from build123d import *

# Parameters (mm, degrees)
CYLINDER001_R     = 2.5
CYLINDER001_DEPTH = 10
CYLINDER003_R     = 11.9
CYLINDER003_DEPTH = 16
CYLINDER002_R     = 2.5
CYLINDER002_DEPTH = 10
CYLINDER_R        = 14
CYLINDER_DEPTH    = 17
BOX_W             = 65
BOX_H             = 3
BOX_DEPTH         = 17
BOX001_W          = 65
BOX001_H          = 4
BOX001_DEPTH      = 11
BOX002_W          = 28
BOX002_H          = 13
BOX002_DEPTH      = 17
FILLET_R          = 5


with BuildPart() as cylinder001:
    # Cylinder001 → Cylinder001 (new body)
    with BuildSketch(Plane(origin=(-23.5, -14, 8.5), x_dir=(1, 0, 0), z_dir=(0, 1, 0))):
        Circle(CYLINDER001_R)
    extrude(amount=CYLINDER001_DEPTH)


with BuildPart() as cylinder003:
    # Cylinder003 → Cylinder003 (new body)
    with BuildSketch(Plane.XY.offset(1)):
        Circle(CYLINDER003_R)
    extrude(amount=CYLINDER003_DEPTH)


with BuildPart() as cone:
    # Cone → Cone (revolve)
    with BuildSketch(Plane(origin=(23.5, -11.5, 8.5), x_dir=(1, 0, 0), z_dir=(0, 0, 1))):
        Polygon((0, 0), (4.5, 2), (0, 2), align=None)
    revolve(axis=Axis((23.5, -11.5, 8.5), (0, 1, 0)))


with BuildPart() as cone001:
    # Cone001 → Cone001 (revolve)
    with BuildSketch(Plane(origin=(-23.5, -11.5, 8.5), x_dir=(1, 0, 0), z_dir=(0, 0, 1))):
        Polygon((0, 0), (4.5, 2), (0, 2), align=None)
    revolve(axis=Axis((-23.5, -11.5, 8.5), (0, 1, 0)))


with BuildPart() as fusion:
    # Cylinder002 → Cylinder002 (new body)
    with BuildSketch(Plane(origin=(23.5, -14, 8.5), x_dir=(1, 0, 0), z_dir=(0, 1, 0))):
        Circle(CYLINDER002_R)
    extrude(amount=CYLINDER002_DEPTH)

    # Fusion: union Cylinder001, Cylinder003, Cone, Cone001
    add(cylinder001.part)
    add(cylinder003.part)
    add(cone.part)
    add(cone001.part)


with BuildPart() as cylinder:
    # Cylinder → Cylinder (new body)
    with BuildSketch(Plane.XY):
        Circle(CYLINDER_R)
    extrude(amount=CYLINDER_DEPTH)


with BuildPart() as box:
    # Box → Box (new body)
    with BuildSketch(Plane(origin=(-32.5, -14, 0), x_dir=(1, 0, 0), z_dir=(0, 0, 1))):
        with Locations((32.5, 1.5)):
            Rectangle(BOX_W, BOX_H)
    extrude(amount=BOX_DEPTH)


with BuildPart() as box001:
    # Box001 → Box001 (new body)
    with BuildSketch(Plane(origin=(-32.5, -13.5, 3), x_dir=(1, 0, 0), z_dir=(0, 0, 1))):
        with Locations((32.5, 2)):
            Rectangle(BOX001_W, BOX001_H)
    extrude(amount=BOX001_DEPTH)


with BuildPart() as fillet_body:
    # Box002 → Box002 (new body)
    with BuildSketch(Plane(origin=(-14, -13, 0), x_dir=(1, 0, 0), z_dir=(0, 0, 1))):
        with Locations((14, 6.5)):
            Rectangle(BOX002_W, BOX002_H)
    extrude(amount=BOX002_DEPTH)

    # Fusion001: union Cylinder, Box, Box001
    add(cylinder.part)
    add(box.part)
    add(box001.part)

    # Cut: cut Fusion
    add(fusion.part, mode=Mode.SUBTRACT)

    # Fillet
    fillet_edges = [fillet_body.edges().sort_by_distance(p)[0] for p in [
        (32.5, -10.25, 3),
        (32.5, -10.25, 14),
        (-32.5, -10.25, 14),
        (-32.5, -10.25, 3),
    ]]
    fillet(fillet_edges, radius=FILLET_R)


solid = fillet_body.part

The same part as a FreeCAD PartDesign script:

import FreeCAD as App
import Part
import Sketcher


def edges_at(feature, points):
    """Names of the edges that pass closest to the given points."""
    edges = feature.Shape.Edges
    near = lambda p: min(range(len(edges)), key=lambda i: edges[i].distToShape(Part.Vertex(*p))[0])
    return sorted({f"Edge{near(p) + 1}" for p in points})

doc = App.newDocument("Part")
params = doc.addObject("Spreadsheet::Sheet", "Params")
for row, (alias, value) in enumerate([
    ("sketch1_diameter", "5 mm"),
    ("pad1_length", "10 mm"),
    ("sketch2_diameter", "23.8 mm"),
    ("pad2_length", "16 mm"),
    ("sketch3_height", "2 mm"),
    ("sketch3_width", "4.5 mm"),
    ("revolution_angle", "360 deg"),
    ("sketch4_height", "2 mm"),
    ("sketch4_width", "4.5 mm"),
    ("revolution2_angle", "360 deg"),
    ("sketch5_diameter", "5 mm"),
    ("pad3_length", "10 mm"),
    ("sketch6_diameter", "28 mm"),
    ("pad4_length", "17 mm"),
    ("sketch7_width", "65 mm"),
    ("sketch7_height", "3 mm"),
    ("pad5_length", "17 mm"),
    ("sketch8_width", "65 mm"),
    ("sketch8_height", "4 mm"),
    ("pad6_length", "11 mm"),
    ("sketch9_width", "28 mm"),
    ("sketch9_height", "13 mm"),
    ("pad7_length", "17 mm"),
    ("fillet_radius", "5 mm"),
], start=1):
    params.set(f"A{row}", alias)
    params.set(f"B{row}", "=" + value)
    params.setAlias(f"B{row}", alias)

body = doc.addObject("PartDesign::Body", "Body")

# Sketch on XZ plane
sketch1 = body.newObject("Sketcher::SketchObject", "Sketch")
sketch1.AttachmentSupport = (doc.getObject("XZ_Plane"), [""])
sketch1.MapMode = "FlatFace"
sketch1.AttachmentOffset = App.Placement(App.Vector(0, 0, 14), App.Rotation())
sketch1.addGeometry(Part.Circle(App.Vector(-23.5, 8.5, 0), App.Vector(0, 0, 1), 2.5), False)
sketch1.addConstraint([
    Sketcher.Constraint("Diameter", 0, 5.0),
    Sketcher.Constraint("DistanceX", 0, 3, -1, 1, 23.5),
    Sketcher.Constraint("DistanceY", -1, 1, 0, 3, 8.5),
])
sketch1.setExpression("Constraints[0]", "Params.sketch1_diameter")
pad1 = body.newObject("PartDesign::Pad", "Pad")
pad1.Profile = sketch1
pad1.setExpression("Length", "Params.pad1_length")
pad1.Reversed = True
body2 = doc.addObject("PartDesign::Body", "Body001")

# Sketch on XY plane
sketch2 = body2.newObject("Sketcher::SketchObject", "Sketch001")
sketch2.AttachmentSupport = (doc.getObject("XY_Plane001"), [""])
sketch2.MapMode = "FlatFace"
sketch2.AttachmentOffset = App.Placement(App.Vector(0, 0, 1), App.Rotation())
sketch2.addGeometry(Part.Circle(App.Vector(0, 0, 0), App.Vector(0, 0, 1), 12), False)
sketch2.addConstraint([
    Sketcher.Constraint("Coincident", 0, 3, -1, 1),
    Sketcher.Constraint("Diameter", 0, 23.8),
])
sketch2.setExpression("Constraints[1]", "Params.sketch2_diameter")
pad2 = body2.newObject("PartDesign::Pad", "Pad001")
pad2.Profile = sketch2
pad2.setExpression("Length", "Params.pad2_length")
body3 = doc.addObject("PartDesign::Body", "Body002")

# Sketch on XY plane
sketch3 = body3.newObject("Sketcher::SketchObject", "Sketch002")
sketch3.AttachmentSupport = (doc.getObject("XY_Plane002"), [""])
sketch3.MapMode = "FlatFace"
sketch3.AttachmentOffset = App.Placement(App.Vector(0, 0, 8.5), App.Rotation())
sketch3.addGeometry([
    Part.LineSegment(App.Vector(23.5, -11.5, 0), App.Vector(28, -9.5, 0)),
    Part.LineSegment(App.Vector(28, -9.5, 0), App.Vector(23.5, -9.5, 0)),
    Part.LineSegment(App.Vector(23.5, -9.5, 0), App.Vector(23.5, -11.5, 0)),
], False)
sketch3.addGeometry(Part.LineSegment(App.Vector(23.5, -11.5, 0), App.Vector(23.5, -9.5, 0)), True)  # axis
sketch3.addConstraint([
    Sketcher.Constraint("Coincident", 0, 2, 1, 1),
    Sketcher.Constraint("Coincident", 1, 2, 2, 1),
    Sketcher.Constraint("Coincident", 2, 2, 0, 1),
    Sketcher.Constraint("Horizontal", 1),
    Sketcher.Constraint("Vertical", 2),
    Sketcher.Constraint("Vertical", 3),
    Sketcher.Constraint("Coincident", 3, 1, 2, 2),
    Sketcher.Constraint("Horizontal", 0, 2, 3, 2),
    Sketcher.Constraint("DistanceY", 2, 2, 2, 1, 2.0),
    Sketcher.Constraint("DistanceX", 1, 2, 1, 1, 4.5),
    Sketcher.Constraint("DistanceX", -1, 1, 0, 2, 28.0),
    Sketcher.Constraint("DistanceY", 0, 2, -1, 1, 9.5),
])
sketch3.setExpression("Constraints[8]", "Params.sketch3_height")
sketch3.setExpression("Constraints[9]", "Params.sketch3_width")
revolution = body3.newObject("PartDesign::Revolution", "Revolution")
revolution.Profile = sketch3
revolution.ReferenceAxis = (sketch3, ["Axis0"])
revolution.setExpression("Angle", "Params.revolution_angle")
body4 = doc.addObject("PartDesign::Body", "Body003")

# Sketch on XY plane
sketch4 = body4.newObject("Sketcher::SketchObject", "Sketch003")
sketch4.AttachmentSupport = (doc.getObject("XY_Plane003"), [""])
sketch4.MapMode = "FlatFace"
sketch4.AttachmentOffset = App.Placement(App.Vector(0, 0, 8.5), App.Rotation())
sketch4.addGeometry([
    Part.LineSegment(App.Vector(-23.5, -11.5, 0), App.Vector(-19, -9.5, 0)),
    Part.LineSegment(App.Vector(-19, -9.5, 0), App.Vector(-23.5, -9.5, 0)),
    Part.LineSegment(App.Vector(-23.5, -9.5, 0), App.Vector(-23.5, -11.5, 0)),
], False)
sketch4.addGeometry(Part.LineSegment(App.Vector(-23.5, -11.5, 0), App.Vector(-23.5, -9.5, 0)), True)  # axis
sketch4.addConstraint([
    Sketcher.Constraint("Coincident", 0, 2, 1, 1),
    Sketcher.Constraint("Coincident", 1, 2, 2, 1),
    Sketcher.Constraint("Coincident", 2, 2, 0, 1),
    Sketcher.Constraint("Horizontal", 1),
    Sketcher.Constraint("Vertical", 2),
    Sketcher.Constraint("Vertical", 3),
    Sketcher.Constraint("Coincident", 3, 1, 2, 2),
    Sketcher.Constraint("Horizontal", 0, 2, 3, 2),
    Sketcher.Constraint("DistanceY", 2, 2, 2, 1, 2.0),
    Sketcher.Constraint("DistanceX", 1, 2, 1, 1, 4.5),
    Sketcher.Constraint("DistanceX", 0, 2, -1, 1, 19.0),
    Sketcher.Constraint("DistanceY", 0, 2, -1, 1, 9.5),
])
sketch4.setExpression("Constraints[8]", "Params.sketch4_height")
sketch4.setExpression("Constraints[9]", "Params.sketch4_width")
revolution2 = body4.newObject("PartDesign::Revolution", "Revolution001")
revolution2.Profile = sketch4
revolution2.ReferenceAxis = (sketch4, ["Axis0"])
revolution2.setExpression("Angle", "Params.revolution2_angle")
body5 = doc.addObject("PartDesign::Body", "Body004")
body5.AllowCompound = True

# Sketch on XZ plane
sketch5 = body5.newObject("Sketcher::SketchObject", "Sketch004")
sketch5.AttachmentSupport = (doc.getObject("XZ_Plane004"), [""])
sketch5.MapMode = "FlatFace"
sketch5.AttachmentOffset = App.Placement(App.Vector(0, 0, 14), App.Rotation())
sketch5.addGeometry(Part.Circle(App.Vector(23.5, 8.5, 0), App.Vector(0, 0, 1), 2.5), False)
sketch5.addConstraint([
    Sketcher.Constraint("Diameter", 0, 5.0),
    Sketcher.Constraint("DistanceX", -1, 1, 0, 3, 23.5),
    Sketcher.Constraint("DistanceY", -1, 1, 0, 3, 8.5),
])
sketch5.setExpression("Constraints[0]", "Params.sketch5_diameter")
pad3 = body5.newObject("PartDesign::Pad", "Pad002")
pad3.Profile = sketch5
pad3.setExpression("Length", "Params.pad3_length")
pad3.Reversed = True
doc.recompute()

boolean = body5.newObject("PartDesign::Boolean", "Boolean")
boolean.Type = "Fuse"
boolean.addObjects([body])
doc.recompute()

boolean2 = body5.newObject("PartDesign::Boolean", "Boolean001")
boolean2.Type = "Fuse"
boolean2.addObjects([body2])
doc.recompute()

boolean3 = body5.newObject("PartDesign::Boolean", "Boolean002")
boolean3.Type = "Fuse"
boolean3.addObjects([body3])
doc.recompute()

boolean4 = body5.newObject("PartDesign::Boolean", "Boolean003")
boolean4.Type = "Fuse"
boolean4.addObjects([body4])
body6 = doc.addObject("PartDesign::Body", "Body005")

# Sketch on XY plane
sketch6 = body6.newObject("Sketcher::SketchObject", "Sketch005")
sketch6.AttachmentSupport = (doc.getObject("XY_Plane005"), [""])
sketch6.MapMode = "FlatFace"
sketch6.addGeometry(Part.Circle(App.Vector(0, 0, 0), App.Vector(0, 0, 1), 14), False)
sketch6.addConstraint([
    Sketcher.Constraint("Coincident", 0, 3, -1, 1),
    Sketcher.Constraint("Diameter", 0, 28.0),
])
sketch6.setExpression("Constraints[1]", "Params.sketch6_diameter")
pad4 = body6.newObject("PartDesign::Pad", "Pad003")
pad4.Profile = sketch6
pad4.setExpression("Length", "Params.pad4_length")
body7 = doc.addObject("PartDesign::Body", "Body006")

# Sketch on XY plane
sketch7 = body7.newObject("Sketcher::SketchObject", "Sketch006")
sketch7.AttachmentSupport = (doc.getObject("XY_Plane006"), [""])
sketch7.MapMode = "FlatFace"
sketch7.addGeometry([
    Part.LineSegment(App.Vector(-32.5, -11, 0), App.Vector(-32.5, -14, 0)),
    Part.LineSegment(App.Vector(-32.5, -14, 0), App.Vector(32.5, -14, 0)),
    Part.LineSegment(App.Vector(32.5, -14, 0), App.Vector(32.5, -11, 0)),
    Part.LineSegment(App.Vector(32.5, -11, 0), App.Vector(-32.5, -11, 0)),
], False)
sketch7.addConstraint([
    Sketcher.Constraint("Coincident", 0, 2, 1, 1),
    Sketcher.Constraint("Coincident", 1, 2, 2, 1),
    Sketcher.Constraint("Coincident", 2, 2, 3, 1),
    Sketcher.Constraint("Coincident", 3, 2, 0, 1),
    Sketcher.Constraint("Vertical", 0),
    Sketcher.Constraint("Horizontal", 1),
    Sketcher.Constraint("Vertical", 2),
    Sketcher.Constraint("Horizontal", 3),
    Sketcher.Constraint("DistanceX", 1, 1, 1, 2, 65.0),
    Sketcher.Constraint("DistanceY", 0, 2, 0, 1, 3.0),
    Sketcher.Constraint("DistanceY", 0, 2, -1, 1, 14.0),
    Sketcher.Constraint("DistanceX", 0, 2, -1, 1, 32.5),
])
sketch7.setExpression("Constraints[8]", "Params.sketch7_width")
sketch7.setExpression("Constraints[9]", "Params.sketch7_height")
pad5 = body7.newObject("PartDesign::Pad", "Pad004")
pad5.Profile = sketch7
pad5.setExpression("Length", "Params.pad5_length")
body8 = doc.addObject("PartDesign::Body", "Body007")

# Sketch on XY plane
sketch8 = body8.newObject("Sketcher::SketchObject", "Sketch007")
sketch8.AttachmentSupport = (doc.getObject("XY_Plane007"), [""])
sketch8.MapMode = "FlatFace"
sketch8.AttachmentOffset = App.Placement(App.Vector(0, 0, 3), App.Rotation())
sketch8.addGeometry([
    Part.LineSegment(App.Vector(-32.5, -9.5, 0), App.Vector(-32.5, -13.5, 0)),
    Part.LineSegment(App.Vector(-32.5, -13.5, 0), App.Vector(32.5, -13.5, 0)),
    Part.LineSegment(App.Vector(32.5, -13.5, 0), App.Vector(32.5, -9.5, 0)),
    Part.LineSegment(App.Vector(32.5, -9.5, 0), App.Vector(-32.5, -9.5, 0)),
], False)
sketch8.addConstraint([
    Sketcher.Constraint("Coincident", 0, 2, 1, 1),
    Sketcher.Constraint("Coincident", 1, 2, 2, 1),
    Sketcher.Constraint("Coincident", 2, 2, 3, 1),
    Sketcher.Constraint("Coincident", 3, 2, 0, 1),
    Sketcher.Constraint("Vertical", 0),
    Sketcher.Constraint("Horizontal", 1),
    Sketcher.Constraint("Vertical", 2),
    Sketcher.Constraint("Horizontal", 3),
    Sketcher.Constraint("DistanceX", 1, 1, 1, 2, 65.0),
    Sketcher.Constraint("DistanceY", 0, 2, 0, 1, 4.0),
    Sketcher.Constraint("DistanceX", 0, 2, -1, 1, 32.5),
    Sketcher.Constraint("DistanceY", 0, 2, -1, 1, 13.5),
])
sketch8.setExpression("Constraints[8]", "Params.sketch8_width")
sketch8.setExpression("Constraints[9]", "Params.sketch8_height")
pad6 = body8.newObject("PartDesign::Pad", "Pad005")
pad6.Profile = sketch8
pad6.setExpression("Length", "Params.pad6_length")
body9 = doc.addObject("PartDesign::Body", "Body008")

# Sketch on XY plane
sketch9 = body9.newObject("Sketcher::SketchObject", "Sketch008")
sketch9.AttachmentSupport = (doc.getObject("XY_Plane008"), [""])
sketch9.MapMode = "FlatFace"
sketch9.addGeometry([
    Part.LineSegment(App.Vector(-14, 0, 0), App.Vector(-14, -13, 0)),
    Part.LineSegment(App.Vector(-14, -13, 0), App.Vector(14, -13, 0)),
    Part.LineSegment(App.Vector(14, -13, 0), App.Vector(14, 0, 0)),
    Part.LineSegment(App.Vector(14, 0, 0), App.Vector(-14, 0, 0)),
], False)
sketch9.addConstraint([
    Sketcher.Constraint("Coincident", 0, 2, 1, 1),
    Sketcher.Constraint("Coincident", 1, 2, 2, 1),
    Sketcher.Constraint("Coincident", 2, 2, 3, 1),
    Sketcher.Constraint("Coincident", 3, 2, 0, 1),
    Sketcher.Constraint("Vertical", 0),
    Sketcher.Constraint("Horizontal", 1),
    Sketcher.Constraint("Vertical", 2),
    Sketcher.Constraint("Horizontal", 3),
    Sketcher.Constraint("Symmetric", 2, 2, 3, 2, -1, 1),
    Sketcher.Constraint("DistanceX", 1, 1, 1, 2, 28.0),
    Sketcher.Constraint("DistanceY", 0, 2, 0, 1, 13.0),
])
sketch9.setExpression("Constraints[9]", "Params.sketch9_width")
sketch9.setExpression("Constraints[10]", "Params.sketch9_height")
pad7 = body9.newObject("PartDesign::Pad", "Pad006")
pad7.Profile = sketch9
pad7.setExpression("Length", "Params.pad7_length")
doc.recompute()

boolean5 = body9.newObject("PartDesign::Boolean", "Boolean004")
boolean5.Type = "Fuse"
boolean5.addObjects([body6])
doc.recompute()

boolean6 = body9.newObject("PartDesign::Boolean", "Boolean005")
boolean6.Type = "Fuse"
boolean6.addObjects([body7])
doc.recompute()

boolean7 = body9.newObject("PartDesign::Boolean", "Boolean006")
boolean7.Type = "Fuse"
boolean7.addObjects([body8])
doc.recompute()

boolean8 = body9.newObject("PartDesign::Boolean", "Boolean007")
boolean8.Type = "Cut"
boolean8.addObjects([body5])
doc.recompute()

fillet = body9.newObject("PartDesign::Fillet", "Fillet")
fillet.Base = (boolean8, edges_at(boolean8, [
    (32.5, -10.25, 3),
    (32.5, -10.25, 14),
    (-32.5, -10.25, 14),
    (-32.5, -10.25, 3),
]))
fillet.setExpression("Radius", "Params.fillet_radius")

doc.recompute()
